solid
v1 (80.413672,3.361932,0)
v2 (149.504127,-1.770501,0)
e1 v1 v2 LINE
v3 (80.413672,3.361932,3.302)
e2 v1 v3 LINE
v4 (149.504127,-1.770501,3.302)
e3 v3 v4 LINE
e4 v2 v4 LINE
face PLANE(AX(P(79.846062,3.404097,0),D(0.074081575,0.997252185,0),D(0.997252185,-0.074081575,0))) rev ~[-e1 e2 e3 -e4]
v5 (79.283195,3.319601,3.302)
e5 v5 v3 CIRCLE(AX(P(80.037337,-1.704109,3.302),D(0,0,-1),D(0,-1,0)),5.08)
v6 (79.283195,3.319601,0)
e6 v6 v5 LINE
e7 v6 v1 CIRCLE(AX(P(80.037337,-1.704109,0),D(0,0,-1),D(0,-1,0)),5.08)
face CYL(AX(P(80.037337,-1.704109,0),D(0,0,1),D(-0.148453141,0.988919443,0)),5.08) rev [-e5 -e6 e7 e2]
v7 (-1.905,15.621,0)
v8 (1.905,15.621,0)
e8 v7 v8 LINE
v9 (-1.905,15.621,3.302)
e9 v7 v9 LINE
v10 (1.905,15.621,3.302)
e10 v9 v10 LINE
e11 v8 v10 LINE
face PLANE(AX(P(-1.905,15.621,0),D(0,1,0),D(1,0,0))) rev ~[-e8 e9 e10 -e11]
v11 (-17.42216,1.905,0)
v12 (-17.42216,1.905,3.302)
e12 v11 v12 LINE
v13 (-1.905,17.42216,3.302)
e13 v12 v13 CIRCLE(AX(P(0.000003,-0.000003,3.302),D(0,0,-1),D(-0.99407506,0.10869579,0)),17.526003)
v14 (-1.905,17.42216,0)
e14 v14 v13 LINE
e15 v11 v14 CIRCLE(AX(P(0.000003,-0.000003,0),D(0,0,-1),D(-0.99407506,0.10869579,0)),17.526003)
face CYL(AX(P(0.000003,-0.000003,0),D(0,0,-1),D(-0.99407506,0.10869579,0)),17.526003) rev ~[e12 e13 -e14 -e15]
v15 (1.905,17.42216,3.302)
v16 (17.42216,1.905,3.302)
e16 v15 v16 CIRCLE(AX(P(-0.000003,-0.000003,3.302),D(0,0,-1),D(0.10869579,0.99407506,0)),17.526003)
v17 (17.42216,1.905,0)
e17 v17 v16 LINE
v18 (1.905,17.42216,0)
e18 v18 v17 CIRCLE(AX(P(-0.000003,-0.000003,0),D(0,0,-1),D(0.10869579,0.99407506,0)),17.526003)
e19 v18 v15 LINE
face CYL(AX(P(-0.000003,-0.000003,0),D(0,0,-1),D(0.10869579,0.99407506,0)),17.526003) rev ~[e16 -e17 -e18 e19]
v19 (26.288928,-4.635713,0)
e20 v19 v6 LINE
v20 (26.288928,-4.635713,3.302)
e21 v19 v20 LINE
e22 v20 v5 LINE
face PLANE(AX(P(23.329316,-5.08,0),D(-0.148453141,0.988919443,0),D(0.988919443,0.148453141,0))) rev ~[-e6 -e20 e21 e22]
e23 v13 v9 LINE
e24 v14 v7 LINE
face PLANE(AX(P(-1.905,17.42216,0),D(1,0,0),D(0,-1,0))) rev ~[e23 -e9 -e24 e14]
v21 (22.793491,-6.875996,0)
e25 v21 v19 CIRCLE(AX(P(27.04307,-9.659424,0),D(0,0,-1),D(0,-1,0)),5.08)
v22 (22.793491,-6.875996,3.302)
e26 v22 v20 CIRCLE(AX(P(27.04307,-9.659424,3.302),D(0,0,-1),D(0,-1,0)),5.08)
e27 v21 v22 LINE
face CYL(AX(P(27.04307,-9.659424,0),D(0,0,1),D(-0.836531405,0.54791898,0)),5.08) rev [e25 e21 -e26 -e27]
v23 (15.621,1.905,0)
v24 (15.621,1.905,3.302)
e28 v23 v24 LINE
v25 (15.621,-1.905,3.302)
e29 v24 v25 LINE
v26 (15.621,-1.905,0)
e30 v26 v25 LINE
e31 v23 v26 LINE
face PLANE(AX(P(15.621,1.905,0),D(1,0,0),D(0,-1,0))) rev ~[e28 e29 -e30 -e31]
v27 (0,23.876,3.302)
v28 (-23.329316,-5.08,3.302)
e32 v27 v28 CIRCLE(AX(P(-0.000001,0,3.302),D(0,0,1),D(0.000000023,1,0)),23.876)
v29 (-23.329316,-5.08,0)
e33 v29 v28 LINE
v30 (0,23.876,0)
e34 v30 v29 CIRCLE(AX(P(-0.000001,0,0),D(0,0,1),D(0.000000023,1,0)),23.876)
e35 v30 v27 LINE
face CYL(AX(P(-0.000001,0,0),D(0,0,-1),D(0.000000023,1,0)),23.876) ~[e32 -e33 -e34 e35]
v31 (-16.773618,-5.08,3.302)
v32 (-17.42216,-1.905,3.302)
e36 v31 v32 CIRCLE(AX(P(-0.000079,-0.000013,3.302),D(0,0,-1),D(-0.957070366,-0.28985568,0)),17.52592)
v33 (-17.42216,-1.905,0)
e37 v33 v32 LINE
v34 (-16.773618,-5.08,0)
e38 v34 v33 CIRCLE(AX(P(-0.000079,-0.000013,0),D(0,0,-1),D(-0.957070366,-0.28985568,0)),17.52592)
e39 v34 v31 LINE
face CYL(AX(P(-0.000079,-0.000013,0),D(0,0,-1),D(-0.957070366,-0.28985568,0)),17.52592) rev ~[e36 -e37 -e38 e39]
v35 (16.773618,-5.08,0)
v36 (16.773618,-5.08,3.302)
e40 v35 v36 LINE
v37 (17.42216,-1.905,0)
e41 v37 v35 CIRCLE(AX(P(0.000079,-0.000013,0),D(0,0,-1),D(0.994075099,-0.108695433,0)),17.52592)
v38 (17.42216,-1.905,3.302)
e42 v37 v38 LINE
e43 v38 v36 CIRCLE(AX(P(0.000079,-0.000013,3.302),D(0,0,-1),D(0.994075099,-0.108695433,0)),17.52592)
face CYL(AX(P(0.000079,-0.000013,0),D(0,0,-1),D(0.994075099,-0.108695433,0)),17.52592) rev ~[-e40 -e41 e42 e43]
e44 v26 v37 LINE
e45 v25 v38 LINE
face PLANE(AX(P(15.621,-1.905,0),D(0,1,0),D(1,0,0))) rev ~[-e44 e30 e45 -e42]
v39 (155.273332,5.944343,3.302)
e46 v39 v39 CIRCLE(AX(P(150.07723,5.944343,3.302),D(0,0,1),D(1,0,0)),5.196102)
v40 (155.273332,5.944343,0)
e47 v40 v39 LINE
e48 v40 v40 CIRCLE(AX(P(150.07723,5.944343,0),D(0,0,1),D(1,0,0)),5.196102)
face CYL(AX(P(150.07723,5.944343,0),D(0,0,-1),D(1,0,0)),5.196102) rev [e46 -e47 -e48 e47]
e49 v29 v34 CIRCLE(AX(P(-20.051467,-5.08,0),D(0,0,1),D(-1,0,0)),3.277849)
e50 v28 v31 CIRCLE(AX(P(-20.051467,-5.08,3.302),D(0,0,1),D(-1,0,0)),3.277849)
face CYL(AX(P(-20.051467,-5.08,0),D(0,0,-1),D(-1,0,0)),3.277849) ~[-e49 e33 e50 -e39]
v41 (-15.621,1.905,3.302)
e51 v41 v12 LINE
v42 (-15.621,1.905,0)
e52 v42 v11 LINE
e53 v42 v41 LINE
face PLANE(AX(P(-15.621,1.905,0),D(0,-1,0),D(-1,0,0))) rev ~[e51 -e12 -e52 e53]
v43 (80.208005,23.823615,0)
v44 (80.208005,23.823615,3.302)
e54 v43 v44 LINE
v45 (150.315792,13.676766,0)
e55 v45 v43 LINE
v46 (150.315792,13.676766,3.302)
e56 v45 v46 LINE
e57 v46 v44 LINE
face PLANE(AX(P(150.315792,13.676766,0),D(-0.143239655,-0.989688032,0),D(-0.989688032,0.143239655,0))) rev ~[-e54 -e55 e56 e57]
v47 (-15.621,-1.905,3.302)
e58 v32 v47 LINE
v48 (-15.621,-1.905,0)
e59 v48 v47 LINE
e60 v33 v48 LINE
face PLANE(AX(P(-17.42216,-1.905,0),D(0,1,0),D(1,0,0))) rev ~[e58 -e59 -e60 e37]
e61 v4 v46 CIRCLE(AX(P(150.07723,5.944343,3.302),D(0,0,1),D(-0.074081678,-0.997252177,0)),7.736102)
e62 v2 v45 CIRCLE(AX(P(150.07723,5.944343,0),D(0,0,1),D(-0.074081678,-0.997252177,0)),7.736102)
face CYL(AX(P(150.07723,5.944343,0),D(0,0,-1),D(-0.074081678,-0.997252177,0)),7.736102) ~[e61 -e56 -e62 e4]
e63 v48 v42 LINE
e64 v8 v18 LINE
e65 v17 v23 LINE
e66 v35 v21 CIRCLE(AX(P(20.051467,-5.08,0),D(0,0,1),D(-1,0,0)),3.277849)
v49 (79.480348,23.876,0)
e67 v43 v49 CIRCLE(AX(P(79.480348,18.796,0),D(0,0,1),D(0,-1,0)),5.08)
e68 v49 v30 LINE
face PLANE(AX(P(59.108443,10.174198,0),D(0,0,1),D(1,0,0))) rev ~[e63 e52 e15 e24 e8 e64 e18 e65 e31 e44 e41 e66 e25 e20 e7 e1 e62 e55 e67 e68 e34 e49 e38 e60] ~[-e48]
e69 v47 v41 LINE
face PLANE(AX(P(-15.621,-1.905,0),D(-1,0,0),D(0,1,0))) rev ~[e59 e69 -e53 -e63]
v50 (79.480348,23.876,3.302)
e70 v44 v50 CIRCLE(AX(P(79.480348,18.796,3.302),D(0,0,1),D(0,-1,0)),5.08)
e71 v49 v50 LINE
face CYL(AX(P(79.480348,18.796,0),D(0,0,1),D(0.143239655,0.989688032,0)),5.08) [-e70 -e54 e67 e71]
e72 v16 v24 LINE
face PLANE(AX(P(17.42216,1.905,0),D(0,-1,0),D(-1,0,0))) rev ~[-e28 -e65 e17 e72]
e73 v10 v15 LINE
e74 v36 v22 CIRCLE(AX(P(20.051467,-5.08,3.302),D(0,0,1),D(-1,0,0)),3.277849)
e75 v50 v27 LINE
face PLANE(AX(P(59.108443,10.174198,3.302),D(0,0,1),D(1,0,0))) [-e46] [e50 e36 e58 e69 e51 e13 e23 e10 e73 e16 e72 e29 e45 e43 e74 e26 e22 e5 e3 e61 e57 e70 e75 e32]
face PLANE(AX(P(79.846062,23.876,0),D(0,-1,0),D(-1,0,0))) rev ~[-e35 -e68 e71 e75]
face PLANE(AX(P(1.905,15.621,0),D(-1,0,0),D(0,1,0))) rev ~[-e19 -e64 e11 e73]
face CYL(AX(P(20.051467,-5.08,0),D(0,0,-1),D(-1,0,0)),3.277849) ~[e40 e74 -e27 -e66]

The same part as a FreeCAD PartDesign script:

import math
import FreeCAD as App
import Part
import Sketcher
Q = App.Units.Quantity


def edges_at(feature, points):
    """Names of the edges that pass closest to the given points."""
    edges = feature.Shape.Edges
    near = lambda p: min(range(len(edges)), key=lambda i: edges[i].distToShape(Part.Vertex(*p))[0])
    return sorted({f"Edge{near(p) + 1}" for p in points})

doc = App.newDocument("Part")
body = doc.addObject("PartDesign::Body", "Body")

# Sketch on XY plane
sketch1 = body.newObject("Sketcher::SketchObject", "Sketch")
sketch1.AttachmentSupport = (doc.getObject("XY_Plane"), [""])
sketch1.MapMode = "FlatFace"
sketch1.addGeometry([
    Part.ArcOfCircle(Part.Circle(App.Vector(0.000079, -0.000013, 0), App.Vector(0, 0, 1), 17.52592), math.radians(-16.849316), math.radians(-6.240118)),  # 0
    Part.ArcOfCircle(Part.Circle(App.Vector(20.051467, -5.08, 0), App.Vector(0, 0, 1), 3.277849), math.radians(180), math.radians(360)),  # 1
    Part.LineSegment(App.Vector(23.329316, -5.08, 0), App.Vector(79.846062, 3.404097, 0)),  # 2
    Part.LineSegment(App.Vector(79.846062, 3.404097, 0), App.Vector(149.504127, -1.770501, 0)),  # 3
    Part.ArcOfCircle(Part.Circle(App.Vector(150.07723, 5.944343, 0), App.Vector(0, 0, 1), 7.736102), math.radians(-94.24846), math.radians(88.232865)),  # 4
    Part.LineSegment(App.Vector(150.315792, 13.676766, 0), App.Vector(79.846062, 23.876, 0)),  # 5
    Part.LineSegment(App.Vector(79.846062, 23.876, 0), App.Vector(0, 23.876, 0)),  # 6
    Part.ArcOfCircle(Part.Circle(App.Vector(-0.000001, 0, 0), App.Vector(0, 0, 1), 23.876), math.radians(89.999999), math.radians(192.284495)),  # 7
    Part.ArcOfCircle(Part.Circle(App.Vector(-20.051467, -5.08, 0), App.Vector(0, 0, 1), 3.277849), math.radians(180), math.radians(360)),  # 8
    Part.ArcOfCircle(Part.Circle(App.Vector(-0.000079, -0.000013, 0), App.Vector(0, 0, 1), 17.52592), math.radians(-173.759882), math.radians(-163.150684)),  # 9
    Part.LineSegment(App.Vector(-17.42216, -1.905, 0), App.Vector(-15.621, -1.905, 0)),  # 10
    Part.LineSegment(App.Vector(-15.621, -1.905, 0), App.Vector(-15.621, 1.905, 0)),  # 11
    Part.LineSegment(App.Vector(-15.621, 1.905, 0), App.Vector(-17.42216, 1.905, 0)),  # 12
    Part.ArcOfCircle(Part.Circle(App.Vector(0.000003, -0.000003, 0), App.Vector(0, 0, 1), 17.526003), math.radians(96.240139), math.radians(173.759861)),  # 13
    Part.LineSegment(App.Vector(-1.905, 17.42216, 0), App.Vector(-1.905, 15.621, 0)),  # 14
    Part.LineSegment(App.Vector(-1.905, 15.621, 0), App.Vector(1.905, 15.621, 0)),  # 15
    Part.LineSegment(App.Vector(1.905, 15.621, 0), App.Vector(1.905, 17.42216, 0)),  # 16
    Part.ArcOfCircle(Part.Circle(App.Vector(-0.000003, -0.000003, 0), App.Vector(0, 0, 1), 17.526003), math.radians(6.240139), math.radians(83.759861)),  # 17
    Part.LineSegment(App.Vector(17.42216, 1.905, 0), App.Vector(15.621, 1.905, 0)),  # 18
    Part.LineSegment(App.Vector(15.621, 1.905, 0), App.Vector(15.621, -1.905, 0)),  # 19
    Part.LineSegment(App.Vector(15.621, -1.905, 0), App.Vector(17.42216, -1.905, 0)),  # 20
    Part.Circle(App.Vector(150.07723, 5.944343, 0), App.Vector(0, 0, 1), 5.196102),  # 21
], False)
sketch1.addConstraint([
    Sketcher.Constraint("Coincident", 0, 1, 1, 1),
    Sketcher.Constraint("Coincident", 1, 2, 2, 1),
    Sketcher.Constraint("Coincident", 2, 2, 3, 1),
    Sketcher.Constraint("Tangent", 3, 2, 4, 1),
    Sketcher.Constraint("Coincident", 4, 2, 5, 1),
    Sketcher.Constraint("Coincident", 5, 2, 6, 1),
    Sketcher.Constraint("Tangent", 6, 2, 7, 1),
    Sketcher.Constraint("Coincident", 7, 2, 8, 1),
    Sketcher.Constraint("Coincident", 8, 2, 9, 2),
    Sketcher.Constraint("Coincident", 9, 1, 10, 1),
    Sketcher.Constraint("Coincident", 10, 2, 11, 1),
    Sketcher.Constraint("Coincident", 11, 2, 12, 1),
    Sketcher.Constraint("Coincident", 12, 2, 13, 2),
    Sketcher.Constraint("Coincident", 13, 1, 14, 1),
    Sketcher.Constraint("Coincident", 14, 2, 15, 1),
    Sketcher.Constraint("Coincident", 15, 2, 16, 1),
    Sketcher.Constraint("Coincident", 16, 2, 17, 2),
    Sketcher.Constraint("Coincident", 17, 1, 18, 1),
    Sketcher.Constraint("Coincident", 18, 2, 19, 1),
    Sketcher.Constraint("Coincident", 19, 2, 20, 1),
    Sketcher.Constraint("Coincident", 20, 2, 0, 2),
    Sketcher.Constraint("Horizontal", 6),
    Sketcher.Constraint("Horizontal", 10),
    Sketcher.Constraint("Vertical", 11),
    Sketcher.Constraint("Horizontal", 12),
    Sketcher.Constraint("Vertical", 14),
    Sketcher.Constraint("Horizontal", 15),
    Sketcher.Constraint("Vertical", 16),
    Sketcher.Constraint("Horizontal", 18),
    Sketcher.Constraint("Vertical", 19),
    Sketcher.Constraint("Horizontal", 20),
    Sketcher.Constraint("Coincident", 7, 3, -1, 1),
    Sketcher.Constraint("Coincident", 13, 3, -1, 1),
    Sketcher.Constraint("Coincident", 17, 3, -1, 1),
    Sketcher.Constraint("Coincident", 21, 3, 4, 3),
    Sketcher.Constraint("Equal", 1, 8),
    Sketcher.Constraint("Equal", 0, 9),
    Sketcher.Constraint("Equal", 13, 17),
    Sketcher.Constraint("Symmetric", 9, 1, 17, 1, -1, 1),
    Sketcher.Constraint("Symmetric", 11, 2, 19, 2, -1, 1),
    Sketcher.Constraint("Symmetric", 1, 3, 8, 3, -2),
    Sketcher.Constraint("Symmetric", 0, 3, 9, 3, -2),
    Sketcher.Constraint("Horizontal", 8, 3, 0, 1),
    Sketcher.Constraint("Horizontal", 0, 1, 1, 2),
    Sketcher.Constraint("Horizontal", 1, 2, 7, 2),
    Sketcher.Constraint("Horizontal", 13, 1, 16, 2),
    Sketcher.Constraint("Horizontal", 12, 2, 17, 1),
    Sketcher.Constraint("Vertical", 2, 2, 5, 2),
    Sketcher.Constraint("Equal", 15, 11),
    Sketcher.Constraint("Equal", 20, 14),
    Sketcher.Constraint("Radius", 7, Q("0.94 in")),
    Sketcher.Constraint("Radius", 13, Q("0.6900001 in")),
    Sketcher.Constraint("DistanceX", 15, 1, 15, 2, Q("0.15 in")),
    Sketcher.Constraint("DistanceY", 1, 3, -1, 1, Q("0.2 in")),
    Sketcher.Constraint("Distance", 2, Q("2.25 in")),
    Sketcher.Constraint("Distance", 3, Q("2.75 in")),
    Sketcher.Constraint("Radius", 4, Q("7.736102 mm")),
    Sketcher.Constraint("DistanceX", 10, 2, -1, 1, Q("0.615 in")),
    Sketcher.Constraint("Radius", 0, Q("17.52592 mm")),
    Sketcher.Constraint("Radius", 1, Q("3.277849 mm")),
    Sketcher.Constraint("Diameter", 21, Q("10.392204 mm")),
    Sketcher.Constraint("DistanceY", 3, 2, -1, 1, Q("1.770501 mm")),
    Sketcher.Constraint("DistanceY", 3, 2, 2, 2, Q("5.174598 mm")),
    Sketcher.Constraint("DistanceX", 4, 3, 4, 2, Q("0.238562 mm")),
])
pad1 = body.newObject("PartDesign::Pad", "Pad")
pad1.Profile = sketch1
pad1.Length = Q("0.13 in")
doc.recompute()

fillet = body.newObject("PartDesign::Fillet", "Fillet")
fillet.Base = (pad1, edges_at(pad1, [(23.329, -5.08, 1.651), (79.846, 3.404, 1.651), (79.846, 23.876, 1.651)]))
fillet.Radius = Q("0.2 in")

doc.recompute()
